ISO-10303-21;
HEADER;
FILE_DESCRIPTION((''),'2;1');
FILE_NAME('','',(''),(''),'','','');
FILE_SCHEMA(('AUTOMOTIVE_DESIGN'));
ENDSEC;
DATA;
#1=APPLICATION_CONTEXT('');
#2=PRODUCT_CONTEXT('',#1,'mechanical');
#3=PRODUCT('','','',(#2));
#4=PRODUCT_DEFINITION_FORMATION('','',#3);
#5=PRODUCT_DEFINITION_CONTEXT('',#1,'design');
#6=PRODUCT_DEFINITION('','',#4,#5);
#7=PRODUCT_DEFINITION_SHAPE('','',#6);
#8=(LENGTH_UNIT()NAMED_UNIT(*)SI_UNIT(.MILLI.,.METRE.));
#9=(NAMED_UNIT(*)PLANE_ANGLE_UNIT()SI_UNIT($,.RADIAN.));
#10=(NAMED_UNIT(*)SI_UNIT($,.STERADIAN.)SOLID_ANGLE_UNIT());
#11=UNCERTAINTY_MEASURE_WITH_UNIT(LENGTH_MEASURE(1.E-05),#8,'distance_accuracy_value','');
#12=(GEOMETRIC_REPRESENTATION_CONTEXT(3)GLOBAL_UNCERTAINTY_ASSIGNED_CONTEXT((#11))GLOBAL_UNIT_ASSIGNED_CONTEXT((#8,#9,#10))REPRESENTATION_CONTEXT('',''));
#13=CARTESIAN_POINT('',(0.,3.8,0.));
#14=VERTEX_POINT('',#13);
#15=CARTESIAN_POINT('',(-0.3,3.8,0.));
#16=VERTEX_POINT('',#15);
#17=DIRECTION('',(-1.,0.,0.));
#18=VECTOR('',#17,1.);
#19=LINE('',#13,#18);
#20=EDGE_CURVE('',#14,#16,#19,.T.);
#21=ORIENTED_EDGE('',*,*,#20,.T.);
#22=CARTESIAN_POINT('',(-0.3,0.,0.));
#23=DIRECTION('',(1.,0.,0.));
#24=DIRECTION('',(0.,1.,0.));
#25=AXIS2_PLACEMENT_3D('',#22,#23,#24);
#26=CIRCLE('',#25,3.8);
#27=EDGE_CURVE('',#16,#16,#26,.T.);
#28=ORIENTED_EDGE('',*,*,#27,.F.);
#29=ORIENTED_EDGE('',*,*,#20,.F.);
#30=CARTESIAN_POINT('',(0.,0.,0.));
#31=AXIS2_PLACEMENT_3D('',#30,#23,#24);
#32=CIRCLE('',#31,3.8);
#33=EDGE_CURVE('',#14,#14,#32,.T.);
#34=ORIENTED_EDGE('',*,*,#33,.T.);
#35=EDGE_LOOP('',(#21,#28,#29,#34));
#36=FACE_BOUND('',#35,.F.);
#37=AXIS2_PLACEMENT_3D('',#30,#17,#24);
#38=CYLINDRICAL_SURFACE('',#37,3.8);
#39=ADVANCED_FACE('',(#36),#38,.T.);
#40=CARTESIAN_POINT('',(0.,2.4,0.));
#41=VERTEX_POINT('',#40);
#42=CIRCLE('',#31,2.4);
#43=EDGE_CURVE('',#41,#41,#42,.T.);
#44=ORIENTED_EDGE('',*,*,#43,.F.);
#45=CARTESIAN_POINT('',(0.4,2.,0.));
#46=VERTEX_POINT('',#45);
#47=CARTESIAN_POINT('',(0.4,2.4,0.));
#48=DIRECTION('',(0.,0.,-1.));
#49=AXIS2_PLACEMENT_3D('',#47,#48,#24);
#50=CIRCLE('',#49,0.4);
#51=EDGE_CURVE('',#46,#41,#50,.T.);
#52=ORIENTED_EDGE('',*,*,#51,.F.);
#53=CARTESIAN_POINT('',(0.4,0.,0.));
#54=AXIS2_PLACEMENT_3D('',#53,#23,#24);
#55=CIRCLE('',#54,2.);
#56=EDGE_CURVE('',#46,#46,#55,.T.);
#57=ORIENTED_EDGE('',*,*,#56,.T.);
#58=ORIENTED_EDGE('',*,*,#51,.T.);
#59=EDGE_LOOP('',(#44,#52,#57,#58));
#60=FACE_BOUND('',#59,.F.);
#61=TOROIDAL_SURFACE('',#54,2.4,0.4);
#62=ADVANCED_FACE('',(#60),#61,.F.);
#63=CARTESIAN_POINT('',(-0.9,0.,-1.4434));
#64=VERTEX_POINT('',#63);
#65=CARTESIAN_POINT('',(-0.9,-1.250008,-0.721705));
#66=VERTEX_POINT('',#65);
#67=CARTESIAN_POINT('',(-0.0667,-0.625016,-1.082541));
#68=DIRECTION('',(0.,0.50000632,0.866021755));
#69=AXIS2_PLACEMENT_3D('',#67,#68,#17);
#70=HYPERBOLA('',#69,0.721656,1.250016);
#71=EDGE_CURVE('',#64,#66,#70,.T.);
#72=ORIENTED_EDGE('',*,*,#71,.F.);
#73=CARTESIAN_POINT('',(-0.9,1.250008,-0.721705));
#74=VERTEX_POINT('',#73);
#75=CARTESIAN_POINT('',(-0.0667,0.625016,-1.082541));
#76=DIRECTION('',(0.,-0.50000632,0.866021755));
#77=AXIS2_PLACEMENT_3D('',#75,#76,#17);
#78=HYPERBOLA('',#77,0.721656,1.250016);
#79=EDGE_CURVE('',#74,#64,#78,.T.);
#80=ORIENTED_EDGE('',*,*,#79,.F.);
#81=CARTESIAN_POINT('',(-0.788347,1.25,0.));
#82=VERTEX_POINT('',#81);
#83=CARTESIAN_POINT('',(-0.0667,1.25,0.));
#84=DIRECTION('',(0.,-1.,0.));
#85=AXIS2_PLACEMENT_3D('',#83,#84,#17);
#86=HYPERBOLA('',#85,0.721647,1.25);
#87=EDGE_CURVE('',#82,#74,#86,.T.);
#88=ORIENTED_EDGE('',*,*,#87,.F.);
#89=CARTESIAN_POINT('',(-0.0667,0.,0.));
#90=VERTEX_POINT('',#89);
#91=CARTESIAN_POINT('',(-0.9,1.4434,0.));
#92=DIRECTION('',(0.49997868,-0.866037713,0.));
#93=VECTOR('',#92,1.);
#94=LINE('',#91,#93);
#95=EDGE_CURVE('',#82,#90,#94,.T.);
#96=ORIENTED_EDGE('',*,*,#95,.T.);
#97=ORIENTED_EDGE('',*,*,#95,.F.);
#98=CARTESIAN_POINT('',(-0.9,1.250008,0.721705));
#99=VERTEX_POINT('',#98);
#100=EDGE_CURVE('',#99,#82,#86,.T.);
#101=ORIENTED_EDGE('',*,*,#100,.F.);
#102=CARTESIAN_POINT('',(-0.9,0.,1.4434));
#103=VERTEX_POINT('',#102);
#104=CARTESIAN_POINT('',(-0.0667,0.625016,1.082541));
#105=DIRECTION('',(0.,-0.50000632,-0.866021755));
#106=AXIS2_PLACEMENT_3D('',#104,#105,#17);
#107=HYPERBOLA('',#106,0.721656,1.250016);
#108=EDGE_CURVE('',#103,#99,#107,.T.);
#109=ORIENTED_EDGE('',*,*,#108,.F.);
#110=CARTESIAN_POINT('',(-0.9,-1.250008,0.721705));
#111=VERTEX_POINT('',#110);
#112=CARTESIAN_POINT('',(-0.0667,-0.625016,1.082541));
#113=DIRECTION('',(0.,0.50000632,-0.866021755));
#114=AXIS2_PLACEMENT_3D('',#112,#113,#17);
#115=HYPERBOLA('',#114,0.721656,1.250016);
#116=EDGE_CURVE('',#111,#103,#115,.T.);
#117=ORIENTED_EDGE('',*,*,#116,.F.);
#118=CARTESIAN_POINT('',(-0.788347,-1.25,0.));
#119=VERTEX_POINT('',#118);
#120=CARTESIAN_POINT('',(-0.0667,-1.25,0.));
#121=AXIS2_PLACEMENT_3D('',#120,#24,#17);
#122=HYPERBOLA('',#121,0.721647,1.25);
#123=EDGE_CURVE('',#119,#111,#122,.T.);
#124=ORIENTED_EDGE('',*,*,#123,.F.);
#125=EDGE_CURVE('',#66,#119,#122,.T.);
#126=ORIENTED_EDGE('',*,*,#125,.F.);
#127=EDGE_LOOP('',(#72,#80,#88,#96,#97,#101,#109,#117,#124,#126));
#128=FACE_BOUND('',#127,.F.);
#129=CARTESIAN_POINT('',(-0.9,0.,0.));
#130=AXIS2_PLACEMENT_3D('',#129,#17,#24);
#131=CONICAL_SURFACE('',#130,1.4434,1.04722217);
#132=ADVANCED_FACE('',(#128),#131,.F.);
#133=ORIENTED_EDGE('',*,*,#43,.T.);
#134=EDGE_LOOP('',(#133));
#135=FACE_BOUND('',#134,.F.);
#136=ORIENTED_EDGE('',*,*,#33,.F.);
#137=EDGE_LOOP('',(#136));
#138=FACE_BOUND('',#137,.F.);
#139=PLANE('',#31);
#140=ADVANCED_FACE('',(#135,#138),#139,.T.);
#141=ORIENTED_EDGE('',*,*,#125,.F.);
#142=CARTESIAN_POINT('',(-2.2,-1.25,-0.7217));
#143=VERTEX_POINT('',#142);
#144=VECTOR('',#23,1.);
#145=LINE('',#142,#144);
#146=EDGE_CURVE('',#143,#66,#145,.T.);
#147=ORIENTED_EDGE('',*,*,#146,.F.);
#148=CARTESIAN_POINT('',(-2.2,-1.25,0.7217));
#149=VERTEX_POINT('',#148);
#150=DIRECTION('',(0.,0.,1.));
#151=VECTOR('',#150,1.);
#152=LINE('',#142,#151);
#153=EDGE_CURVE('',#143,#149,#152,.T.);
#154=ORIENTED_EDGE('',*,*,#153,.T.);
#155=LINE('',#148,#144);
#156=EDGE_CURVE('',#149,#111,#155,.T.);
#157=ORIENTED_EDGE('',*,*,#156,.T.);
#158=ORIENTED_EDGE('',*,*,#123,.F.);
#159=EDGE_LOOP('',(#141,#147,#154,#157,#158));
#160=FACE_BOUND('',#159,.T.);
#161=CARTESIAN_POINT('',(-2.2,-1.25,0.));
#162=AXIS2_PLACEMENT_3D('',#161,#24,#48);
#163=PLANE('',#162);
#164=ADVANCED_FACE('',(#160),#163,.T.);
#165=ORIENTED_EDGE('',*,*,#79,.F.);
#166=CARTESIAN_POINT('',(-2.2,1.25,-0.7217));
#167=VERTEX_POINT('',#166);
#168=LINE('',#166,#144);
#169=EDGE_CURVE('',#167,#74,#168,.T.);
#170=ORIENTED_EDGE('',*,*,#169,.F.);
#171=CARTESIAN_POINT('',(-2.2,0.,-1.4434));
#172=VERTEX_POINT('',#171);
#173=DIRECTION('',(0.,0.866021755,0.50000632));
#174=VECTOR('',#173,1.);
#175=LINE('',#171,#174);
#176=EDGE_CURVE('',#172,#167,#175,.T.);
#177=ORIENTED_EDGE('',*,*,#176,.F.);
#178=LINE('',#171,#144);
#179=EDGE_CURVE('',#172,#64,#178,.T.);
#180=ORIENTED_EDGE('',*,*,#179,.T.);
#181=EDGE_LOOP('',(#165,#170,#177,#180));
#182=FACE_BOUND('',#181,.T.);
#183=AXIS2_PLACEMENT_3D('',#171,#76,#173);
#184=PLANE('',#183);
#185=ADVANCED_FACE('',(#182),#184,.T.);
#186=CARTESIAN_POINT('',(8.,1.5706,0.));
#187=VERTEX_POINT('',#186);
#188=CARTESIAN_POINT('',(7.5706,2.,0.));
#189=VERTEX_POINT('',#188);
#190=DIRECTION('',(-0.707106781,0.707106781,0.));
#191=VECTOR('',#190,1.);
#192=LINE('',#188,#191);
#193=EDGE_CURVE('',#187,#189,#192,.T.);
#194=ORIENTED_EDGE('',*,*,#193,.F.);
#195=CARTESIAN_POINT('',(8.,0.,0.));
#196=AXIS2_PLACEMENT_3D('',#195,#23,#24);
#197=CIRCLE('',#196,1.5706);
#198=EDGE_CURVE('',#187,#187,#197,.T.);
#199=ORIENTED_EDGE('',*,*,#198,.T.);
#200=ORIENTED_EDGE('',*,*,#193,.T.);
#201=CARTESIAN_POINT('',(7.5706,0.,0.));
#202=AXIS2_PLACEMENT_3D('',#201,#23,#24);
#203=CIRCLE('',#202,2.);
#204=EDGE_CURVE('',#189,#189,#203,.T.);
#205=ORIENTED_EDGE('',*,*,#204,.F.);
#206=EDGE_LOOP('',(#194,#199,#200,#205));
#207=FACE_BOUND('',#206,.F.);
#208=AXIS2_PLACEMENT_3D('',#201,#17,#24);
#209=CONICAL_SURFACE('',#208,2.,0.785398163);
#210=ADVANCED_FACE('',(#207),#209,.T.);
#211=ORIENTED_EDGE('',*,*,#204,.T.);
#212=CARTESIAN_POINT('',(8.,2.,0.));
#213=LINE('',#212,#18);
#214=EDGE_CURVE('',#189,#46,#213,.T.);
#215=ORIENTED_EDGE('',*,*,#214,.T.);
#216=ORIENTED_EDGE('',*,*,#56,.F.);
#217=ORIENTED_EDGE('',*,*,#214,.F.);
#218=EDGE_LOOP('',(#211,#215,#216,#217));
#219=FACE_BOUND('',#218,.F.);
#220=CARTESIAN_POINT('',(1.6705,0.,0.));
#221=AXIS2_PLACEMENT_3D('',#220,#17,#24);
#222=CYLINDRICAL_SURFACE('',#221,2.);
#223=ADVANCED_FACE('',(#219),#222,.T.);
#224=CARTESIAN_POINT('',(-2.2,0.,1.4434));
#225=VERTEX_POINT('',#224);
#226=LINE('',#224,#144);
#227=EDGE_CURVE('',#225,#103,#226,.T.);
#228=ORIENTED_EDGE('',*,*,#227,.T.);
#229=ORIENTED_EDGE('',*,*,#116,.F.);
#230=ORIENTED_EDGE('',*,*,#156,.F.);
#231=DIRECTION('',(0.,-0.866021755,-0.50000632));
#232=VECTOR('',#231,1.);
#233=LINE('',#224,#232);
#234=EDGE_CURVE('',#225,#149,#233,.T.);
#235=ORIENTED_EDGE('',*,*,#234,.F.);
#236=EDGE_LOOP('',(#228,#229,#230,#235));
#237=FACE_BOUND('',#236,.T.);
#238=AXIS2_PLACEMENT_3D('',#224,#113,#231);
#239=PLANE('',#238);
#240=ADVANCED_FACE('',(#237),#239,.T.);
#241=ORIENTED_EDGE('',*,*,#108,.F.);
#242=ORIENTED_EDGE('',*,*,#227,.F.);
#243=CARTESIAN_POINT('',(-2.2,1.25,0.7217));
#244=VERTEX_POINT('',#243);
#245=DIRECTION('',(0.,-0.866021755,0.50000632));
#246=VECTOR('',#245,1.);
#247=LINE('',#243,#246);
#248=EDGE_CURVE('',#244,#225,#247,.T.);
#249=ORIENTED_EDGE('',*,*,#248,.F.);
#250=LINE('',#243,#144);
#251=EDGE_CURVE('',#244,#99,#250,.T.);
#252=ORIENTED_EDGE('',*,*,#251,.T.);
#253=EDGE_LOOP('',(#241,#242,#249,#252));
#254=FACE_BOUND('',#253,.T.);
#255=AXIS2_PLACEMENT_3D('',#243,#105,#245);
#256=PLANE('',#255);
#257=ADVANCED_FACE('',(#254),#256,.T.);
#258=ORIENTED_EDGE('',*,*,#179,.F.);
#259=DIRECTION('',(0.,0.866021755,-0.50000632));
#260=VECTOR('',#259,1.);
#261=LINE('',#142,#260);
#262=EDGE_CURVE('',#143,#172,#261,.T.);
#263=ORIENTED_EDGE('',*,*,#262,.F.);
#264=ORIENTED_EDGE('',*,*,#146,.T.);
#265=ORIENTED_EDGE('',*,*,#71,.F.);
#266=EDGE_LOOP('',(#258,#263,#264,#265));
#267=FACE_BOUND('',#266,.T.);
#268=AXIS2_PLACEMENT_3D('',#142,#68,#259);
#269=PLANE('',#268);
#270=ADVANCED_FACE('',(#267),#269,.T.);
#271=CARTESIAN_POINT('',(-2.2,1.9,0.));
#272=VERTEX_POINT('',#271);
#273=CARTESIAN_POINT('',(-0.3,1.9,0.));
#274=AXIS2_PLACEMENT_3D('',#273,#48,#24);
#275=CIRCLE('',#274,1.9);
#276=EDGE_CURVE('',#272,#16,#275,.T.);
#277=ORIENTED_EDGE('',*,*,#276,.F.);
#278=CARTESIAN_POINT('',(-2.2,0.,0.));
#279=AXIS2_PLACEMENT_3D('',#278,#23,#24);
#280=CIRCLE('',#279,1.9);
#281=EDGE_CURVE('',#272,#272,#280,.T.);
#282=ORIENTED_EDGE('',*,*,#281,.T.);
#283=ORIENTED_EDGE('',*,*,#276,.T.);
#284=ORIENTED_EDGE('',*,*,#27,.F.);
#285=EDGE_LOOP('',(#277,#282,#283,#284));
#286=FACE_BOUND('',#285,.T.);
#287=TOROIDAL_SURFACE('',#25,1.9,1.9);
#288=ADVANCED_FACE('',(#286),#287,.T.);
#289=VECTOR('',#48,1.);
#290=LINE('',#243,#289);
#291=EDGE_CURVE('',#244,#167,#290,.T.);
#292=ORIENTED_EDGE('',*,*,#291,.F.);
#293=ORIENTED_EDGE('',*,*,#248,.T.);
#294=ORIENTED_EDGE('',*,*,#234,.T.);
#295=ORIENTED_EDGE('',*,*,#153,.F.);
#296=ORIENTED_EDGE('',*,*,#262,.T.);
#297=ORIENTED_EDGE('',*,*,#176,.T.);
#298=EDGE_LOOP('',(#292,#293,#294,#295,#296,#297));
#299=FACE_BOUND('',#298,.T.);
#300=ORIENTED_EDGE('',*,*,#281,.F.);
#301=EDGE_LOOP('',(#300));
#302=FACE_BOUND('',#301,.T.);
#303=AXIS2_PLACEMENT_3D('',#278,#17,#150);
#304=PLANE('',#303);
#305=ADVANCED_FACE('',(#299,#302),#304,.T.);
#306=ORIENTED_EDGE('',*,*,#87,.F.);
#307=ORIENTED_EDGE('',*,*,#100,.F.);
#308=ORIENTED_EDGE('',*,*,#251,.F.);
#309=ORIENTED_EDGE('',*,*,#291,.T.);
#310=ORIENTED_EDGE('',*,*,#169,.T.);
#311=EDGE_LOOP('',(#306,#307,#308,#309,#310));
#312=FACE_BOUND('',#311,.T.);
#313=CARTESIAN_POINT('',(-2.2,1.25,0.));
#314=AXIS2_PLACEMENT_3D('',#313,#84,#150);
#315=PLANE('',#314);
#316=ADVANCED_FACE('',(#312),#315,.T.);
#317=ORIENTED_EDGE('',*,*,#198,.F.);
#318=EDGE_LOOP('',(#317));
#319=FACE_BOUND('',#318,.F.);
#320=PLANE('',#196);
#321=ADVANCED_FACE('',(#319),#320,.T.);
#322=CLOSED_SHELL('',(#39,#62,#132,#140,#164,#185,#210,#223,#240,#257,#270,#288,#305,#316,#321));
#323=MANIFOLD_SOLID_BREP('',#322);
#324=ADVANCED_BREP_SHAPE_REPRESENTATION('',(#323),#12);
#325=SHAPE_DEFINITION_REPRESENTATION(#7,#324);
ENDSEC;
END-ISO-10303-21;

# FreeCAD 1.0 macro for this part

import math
import FreeCAD as App
import Part
import Sketcher
from FreeCAD import Vector
Q = App.Units.Quantity


def edges_at(feature, points):
    """Names of the edges that pass closest to the given points."""
    edges = feature.Shape.Edges
    near = lambda p: min(range(len(edges)), key=lambda i: edges[i].distToShape(Part.Vertex(*p))[0])
    return sorted({f"Edge{near(p) + 1}" for p in points})


def add_polygon(sketch, points):
    """Adds a closed chain of lines whose ends are joined by coincident constraints."""
    first, n = sketch.GeometryCount, len(points)
    for a, b in zip(points, points[1:] + points[:1]):
        sketch.addGeometry(Part.LineSegment(App.Vector(*a, 0), App.Vector(*b, 0)), False)
    for i in range(n):
        sketch.addConstraint(Sketcher.Constraint("Coincident", first + i, 2, first + (i + 1) % n, 1))

doc = App.newDocument("Part")
params = doc.addObject("Spreadsheet::Sheet", "Params")
for row, (alias, value) in enumerate([
    ("sketch1_width", "8 mm"),
    ("sketch1_width2", "2.2 mm"),
    ("sketch1_width3", "1.3 mm"),
    ("sketch1_height", "2 mm"),
    ("sketch1_height2", "1.8 mm"),
    ("revolution_angle", "360 deg"),
    ("fillet_radius", "1.9 mm"),
    ("chamfer_size", "0.4294 mm"),
    ("chamfer_size2", "0.4294 mm"),
    ("fillet2_radius", "0.4 mm"),
], start=1):
    params.set(f"A{row}", alias)
    params.set(f"B{row}", "=" + value)
    params.setAlias(f"B{row}", alias)

body = doc.addObject("PartDesign::Body", "Body")

sketch1 = body.newObject("Sketcher::SketchObject", "Sketch")
sketch1.AttachmentSupport = (doc.getObject("XY_Plane"), [""])
sketch1.MapMode = "FlatFace"
add_polygon(sketch1, [(-0.9, 1.4), (-0.1, 0), (8, 0), (8, 2), (0, 2), (0, 3.8), (-2.2, 3.8), (-2.2, 1.4)])
sketch1.addConstraint(Sketcher.Constraint("Horizontal", 1))
sketch1.addConstraint(Sketcher.Constraint("Vertical", 2))
sketch1.addConstraint(Sketcher.Constraint("Horizontal", 3))
sketch1.addConstraint(Sketcher.Constraint("Vertical", 4))
sketch1.addConstraint(Sketcher.Constraint("Horizontal", 5))
sketch1.addConstraint(Sketcher.Constraint("Vertical", 6))
sketch1.addConstraint(Sketcher.Constraint("Horizontal", 7))
sketch1.addConstraint(Sketcher.Constraint("PointOnObject", 0, 2, -1))
sketch1.addConstraint(Sketcher.Constraint("PointOnObject", 3, 2, -2))
sketch1.addConstraint(Sketcher.Constraint("DistanceX", 3, 2, 3, 1, Q("8 mm")))
sketch1.addConstraint(Sketcher.Constraint("DistanceX", 5, 2, 5, 1, Q("2.2 mm")))
sketch1.addConstraint(Sketcher.Constraint("DistanceX", 7, 1, 7, 2, Q("1.3 mm")))
sketch1.addConstraint(Sketcher.Constraint("DistanceY", 2, 1, 2, 2, Q("2 mm")))
sketch1.addConstraint(Sketcher.Constraint("DistanceY", 4, 1, 4, 2, Q("1.8 mm")))
sketch1.addConstraint(Sketcher.Constraint("DistanceX", 1, 1, 1, 2, Q("8.0667 mm")))
sketch1.addConstraint(Sketcher.Constraint("DistanceY", 6, 2, 6, 1, Q("2.3566 mm")))
sketch1.setExpression("Constraints[17]", "Params.sketch1_width")
sketch1.setExpression("Constraints[18]", "Params.sketch1_width2")
sketch1.setExpression("Constraints[19]", "Params.sketch1_width3")
sketch1.setExpression("Constraints[20]", "Params.sketch1_height")
sketch1.setExpression("Constraints[21]", "Params.sketch1_height2")
revolution = body.newObject("PartDesign::Revolution", "Revolution")
revolution.Profile = sketch1
revolution.ReferenceAxis = (sketch1, ["H_Axis"])
revolution.setExpression("Angle", "Params.revolution_angle")

sketch2 = body.newObject("Sketcher::SketchObject", "Sketch001")
sketch2.AttachmentSupport = (doc.getObject("YZ_Plane"), [""])
sketch2.MapMode = "FlatFace"
sketch2.AttachmentOffset = App.Placement(Vector(0, 0, -2.2), App.Rotation())
sketch2.addGeometry(Part.LineSegment(Vector(1.2, 0.7, 0), Vector(0, 1.4, 0)), False)
sketch2.addGeometry(Part.ArcOfCircle(Part.Circle(Vector(0, 0, 0), Vector(0, 0, 1), 1.4), math.radians(30), math.radians(90)), False)
sketch2.addGeometry(Part.ArcOfCircle(Part.Circle(Vector(0, 0, 0), Vector(0, 0, 1), 1.4), math.radians(90), math.radians(150)), False)
sketch2.addGeometry(Part.LineSegment(Vector(0, 1.4, 0), Vector(-1.2, 0.7, 0)), False)
sketch2.addGeometry(Part.ArcOfCircle(Part.Circle(Vector(0, 0, 0), Vector(0, 0, 1), 1.4), math.radians(-30), math.radians(30)), False)
sketch2.addGeometry(Part.LineSegment(Vector(1.2, 0.7, 0), Vector(1.2, -0.7, 0)), False)
sketch2.addGeometry(Part.LineSegment(Vector(-1.2, 0.7, 0), Vector(-1.2, -0.7, 0)), False)
sketch2.addGeometry(Part.ArcOfCircle(Part.Circle(Vector(0, 0, 0), Vector(0, 0, 1), 1.4), math.radians(150), math.radians(210)), False)
sketch2.addGeometry(Part.LineSegment(Vector(-1.2, -0.7, 0), Vector(0, -1.4, 0)), False)
sketch2.addGeometry(Part.ArcOfCircle(Part.Circle(Vector(0, 0, 0), Vector(0, 0, 1), 1.4), math.radians(-150), math.radians(-90)), False)
sketch2.addGeometry(Part.ArcOfCircle(Part.Circle(Vector(0, 0, 0), Vector(0, 0, 1), 1.4), math.radians(-90), math.radians(-30)), False)
sketch2.addGeometry(Part.LineSegment(Vector(0, -1.4, 0), Vector(1.2, -0.7, 0)), False)
sketch2.addConstraint(Sketcher.Constraint("Coincident", 0, 1, 1, 1))
sketch2.addConstraint(Sketcher.Constraint("Coincident", 1, 2, 0, 2))
sketch2.addConstraint(Sketcher.Constraint("Coincident", 2, 1, 3, 1))
sketch2.addConstraint(Sketcher.Constraint("Coincident", 3, 2, 2, 2))
sketch2.addConstraint(Sketcher.Constraint("Coincident", 4, 1, 5, 2))
sketch2.addConstraint(Sketcher.Constraint("Coincident", 5, 1, 4, 2))
sketch2.addConstraint(Sketcher.Constraint("Coincident", 6, 1, 7, 1))
sketch2.addConstraint(Sketcher.Constraint("Coincident", 7, 2, 6, 2))
sketch2.addConstraint(Sketcher.Constraint("Coincident", 8, 1, 9, 1))
sketch2.addConstraint(Sketcher.Constraint("Coincident", 9, 2, 8, 2))
sketch2.addConstraint(Sketcher.Constraint("Coincident", 10, 1, 11, 1))
sketch2.addConstraint(Sketcher.Constraint("Coincident", 11, 2, 10, 2))
sketch2.addConstraint(Sketcher.Constraint("Vertical", 5))
sketch2.addConstraint(Sketcher.Constraint("Vertical", 6))
sketch2.addConstraint(Sketcher.Constraint("Coincident", 1, 3, -1, 1))
sketch2.addConstraint(Sketcher.Constraint("Coincident", 2, 3, -1, 1))
sketch2.addConstraint(Sketcher.Constraint("Coincident", 4, 3, -1, 1))
sketch2.addConstraint(Sketcher.Constraint("Coincident", 7, 3, -1, 1))
sketch2.addConstraint(Sketcher.Constraint("Coincident", 9, 3, -1, 1))
sketch2.addConstraint(Sketcher.Constraint("Coincident", 10, 3, -1, 1))
sketch2.addConstraint(Sketcher.Constraint("Coincident", 2, 1, 1, 2))
sketch2.addConstraint(Sketcher.Constraint("Coincident", 5, 1, 0, 1))
sketch2.addConstraint(Sketcher.Constraint("Coincident", 6, 1, 3, 2))
sketch2.addConstraint(Sketcher.Constraint("Coincident", 8, 1, 7, 2))
sketch2.addConstraint(Sketcher.Constraint("Coincident", 10, 1, 9, 2))
sketch2.addConstraint(Sketcher.Constraint("PointOnObject", 1, 2, -2))
sketch2.addConstraint(Sketcher.Constraint("PointOnObject", 9, 2, -2))
sketch2.addConstraint(Sketcher.Constraint("Parallel", 0, 8))
sketch2.addConstraint(Sketcher.Constraint("Parallel", 3, 11))
sketch2.addConstraint(Sketcher.Constraint("Angle", 0, Q("149.9996 deg")))
sketch2.addConstraint(Sketcher.Constraint("Radius", 1, Q("1.4434 mm")))
pad1 = body.newObject("PartDesign::Pad", "Pad")
pad1.Profile = sketch2
pad1.Type = "UpToFirst"
doc.recompute()

fillet = body.newObject("PartDesign::Fillet", "Fillet")
fillet.Base = (pad1, edges_at(pad1, [(-2.2, -3.8, 0)]))
fillet.setExpression("Radius", "Params.fillet_radius")
doc.recompute()

chamfer = body.newObject("PartDesign::Chamfer", "Chamfer")
chamfer.Base = (fillet, edges_at(fillet, [(8, -2, 0)]))
chamfer.ChamferType = "Two distances"
chamfer.setExpression("Size", "Params.chamfer_size")
chamfer.setExpression("Size2", "Params.chamfer_size2")
doc.recompute()

fillet2 = body.newObject("PartDesign::Fillet", "Fillet001")
fillet2.Base = (chamfer, edges_at(chamfer, [(0, -2, 0)]))
fillet2.setExpression("Radius", "Params.fillet2_radius")

doc.recompute()
